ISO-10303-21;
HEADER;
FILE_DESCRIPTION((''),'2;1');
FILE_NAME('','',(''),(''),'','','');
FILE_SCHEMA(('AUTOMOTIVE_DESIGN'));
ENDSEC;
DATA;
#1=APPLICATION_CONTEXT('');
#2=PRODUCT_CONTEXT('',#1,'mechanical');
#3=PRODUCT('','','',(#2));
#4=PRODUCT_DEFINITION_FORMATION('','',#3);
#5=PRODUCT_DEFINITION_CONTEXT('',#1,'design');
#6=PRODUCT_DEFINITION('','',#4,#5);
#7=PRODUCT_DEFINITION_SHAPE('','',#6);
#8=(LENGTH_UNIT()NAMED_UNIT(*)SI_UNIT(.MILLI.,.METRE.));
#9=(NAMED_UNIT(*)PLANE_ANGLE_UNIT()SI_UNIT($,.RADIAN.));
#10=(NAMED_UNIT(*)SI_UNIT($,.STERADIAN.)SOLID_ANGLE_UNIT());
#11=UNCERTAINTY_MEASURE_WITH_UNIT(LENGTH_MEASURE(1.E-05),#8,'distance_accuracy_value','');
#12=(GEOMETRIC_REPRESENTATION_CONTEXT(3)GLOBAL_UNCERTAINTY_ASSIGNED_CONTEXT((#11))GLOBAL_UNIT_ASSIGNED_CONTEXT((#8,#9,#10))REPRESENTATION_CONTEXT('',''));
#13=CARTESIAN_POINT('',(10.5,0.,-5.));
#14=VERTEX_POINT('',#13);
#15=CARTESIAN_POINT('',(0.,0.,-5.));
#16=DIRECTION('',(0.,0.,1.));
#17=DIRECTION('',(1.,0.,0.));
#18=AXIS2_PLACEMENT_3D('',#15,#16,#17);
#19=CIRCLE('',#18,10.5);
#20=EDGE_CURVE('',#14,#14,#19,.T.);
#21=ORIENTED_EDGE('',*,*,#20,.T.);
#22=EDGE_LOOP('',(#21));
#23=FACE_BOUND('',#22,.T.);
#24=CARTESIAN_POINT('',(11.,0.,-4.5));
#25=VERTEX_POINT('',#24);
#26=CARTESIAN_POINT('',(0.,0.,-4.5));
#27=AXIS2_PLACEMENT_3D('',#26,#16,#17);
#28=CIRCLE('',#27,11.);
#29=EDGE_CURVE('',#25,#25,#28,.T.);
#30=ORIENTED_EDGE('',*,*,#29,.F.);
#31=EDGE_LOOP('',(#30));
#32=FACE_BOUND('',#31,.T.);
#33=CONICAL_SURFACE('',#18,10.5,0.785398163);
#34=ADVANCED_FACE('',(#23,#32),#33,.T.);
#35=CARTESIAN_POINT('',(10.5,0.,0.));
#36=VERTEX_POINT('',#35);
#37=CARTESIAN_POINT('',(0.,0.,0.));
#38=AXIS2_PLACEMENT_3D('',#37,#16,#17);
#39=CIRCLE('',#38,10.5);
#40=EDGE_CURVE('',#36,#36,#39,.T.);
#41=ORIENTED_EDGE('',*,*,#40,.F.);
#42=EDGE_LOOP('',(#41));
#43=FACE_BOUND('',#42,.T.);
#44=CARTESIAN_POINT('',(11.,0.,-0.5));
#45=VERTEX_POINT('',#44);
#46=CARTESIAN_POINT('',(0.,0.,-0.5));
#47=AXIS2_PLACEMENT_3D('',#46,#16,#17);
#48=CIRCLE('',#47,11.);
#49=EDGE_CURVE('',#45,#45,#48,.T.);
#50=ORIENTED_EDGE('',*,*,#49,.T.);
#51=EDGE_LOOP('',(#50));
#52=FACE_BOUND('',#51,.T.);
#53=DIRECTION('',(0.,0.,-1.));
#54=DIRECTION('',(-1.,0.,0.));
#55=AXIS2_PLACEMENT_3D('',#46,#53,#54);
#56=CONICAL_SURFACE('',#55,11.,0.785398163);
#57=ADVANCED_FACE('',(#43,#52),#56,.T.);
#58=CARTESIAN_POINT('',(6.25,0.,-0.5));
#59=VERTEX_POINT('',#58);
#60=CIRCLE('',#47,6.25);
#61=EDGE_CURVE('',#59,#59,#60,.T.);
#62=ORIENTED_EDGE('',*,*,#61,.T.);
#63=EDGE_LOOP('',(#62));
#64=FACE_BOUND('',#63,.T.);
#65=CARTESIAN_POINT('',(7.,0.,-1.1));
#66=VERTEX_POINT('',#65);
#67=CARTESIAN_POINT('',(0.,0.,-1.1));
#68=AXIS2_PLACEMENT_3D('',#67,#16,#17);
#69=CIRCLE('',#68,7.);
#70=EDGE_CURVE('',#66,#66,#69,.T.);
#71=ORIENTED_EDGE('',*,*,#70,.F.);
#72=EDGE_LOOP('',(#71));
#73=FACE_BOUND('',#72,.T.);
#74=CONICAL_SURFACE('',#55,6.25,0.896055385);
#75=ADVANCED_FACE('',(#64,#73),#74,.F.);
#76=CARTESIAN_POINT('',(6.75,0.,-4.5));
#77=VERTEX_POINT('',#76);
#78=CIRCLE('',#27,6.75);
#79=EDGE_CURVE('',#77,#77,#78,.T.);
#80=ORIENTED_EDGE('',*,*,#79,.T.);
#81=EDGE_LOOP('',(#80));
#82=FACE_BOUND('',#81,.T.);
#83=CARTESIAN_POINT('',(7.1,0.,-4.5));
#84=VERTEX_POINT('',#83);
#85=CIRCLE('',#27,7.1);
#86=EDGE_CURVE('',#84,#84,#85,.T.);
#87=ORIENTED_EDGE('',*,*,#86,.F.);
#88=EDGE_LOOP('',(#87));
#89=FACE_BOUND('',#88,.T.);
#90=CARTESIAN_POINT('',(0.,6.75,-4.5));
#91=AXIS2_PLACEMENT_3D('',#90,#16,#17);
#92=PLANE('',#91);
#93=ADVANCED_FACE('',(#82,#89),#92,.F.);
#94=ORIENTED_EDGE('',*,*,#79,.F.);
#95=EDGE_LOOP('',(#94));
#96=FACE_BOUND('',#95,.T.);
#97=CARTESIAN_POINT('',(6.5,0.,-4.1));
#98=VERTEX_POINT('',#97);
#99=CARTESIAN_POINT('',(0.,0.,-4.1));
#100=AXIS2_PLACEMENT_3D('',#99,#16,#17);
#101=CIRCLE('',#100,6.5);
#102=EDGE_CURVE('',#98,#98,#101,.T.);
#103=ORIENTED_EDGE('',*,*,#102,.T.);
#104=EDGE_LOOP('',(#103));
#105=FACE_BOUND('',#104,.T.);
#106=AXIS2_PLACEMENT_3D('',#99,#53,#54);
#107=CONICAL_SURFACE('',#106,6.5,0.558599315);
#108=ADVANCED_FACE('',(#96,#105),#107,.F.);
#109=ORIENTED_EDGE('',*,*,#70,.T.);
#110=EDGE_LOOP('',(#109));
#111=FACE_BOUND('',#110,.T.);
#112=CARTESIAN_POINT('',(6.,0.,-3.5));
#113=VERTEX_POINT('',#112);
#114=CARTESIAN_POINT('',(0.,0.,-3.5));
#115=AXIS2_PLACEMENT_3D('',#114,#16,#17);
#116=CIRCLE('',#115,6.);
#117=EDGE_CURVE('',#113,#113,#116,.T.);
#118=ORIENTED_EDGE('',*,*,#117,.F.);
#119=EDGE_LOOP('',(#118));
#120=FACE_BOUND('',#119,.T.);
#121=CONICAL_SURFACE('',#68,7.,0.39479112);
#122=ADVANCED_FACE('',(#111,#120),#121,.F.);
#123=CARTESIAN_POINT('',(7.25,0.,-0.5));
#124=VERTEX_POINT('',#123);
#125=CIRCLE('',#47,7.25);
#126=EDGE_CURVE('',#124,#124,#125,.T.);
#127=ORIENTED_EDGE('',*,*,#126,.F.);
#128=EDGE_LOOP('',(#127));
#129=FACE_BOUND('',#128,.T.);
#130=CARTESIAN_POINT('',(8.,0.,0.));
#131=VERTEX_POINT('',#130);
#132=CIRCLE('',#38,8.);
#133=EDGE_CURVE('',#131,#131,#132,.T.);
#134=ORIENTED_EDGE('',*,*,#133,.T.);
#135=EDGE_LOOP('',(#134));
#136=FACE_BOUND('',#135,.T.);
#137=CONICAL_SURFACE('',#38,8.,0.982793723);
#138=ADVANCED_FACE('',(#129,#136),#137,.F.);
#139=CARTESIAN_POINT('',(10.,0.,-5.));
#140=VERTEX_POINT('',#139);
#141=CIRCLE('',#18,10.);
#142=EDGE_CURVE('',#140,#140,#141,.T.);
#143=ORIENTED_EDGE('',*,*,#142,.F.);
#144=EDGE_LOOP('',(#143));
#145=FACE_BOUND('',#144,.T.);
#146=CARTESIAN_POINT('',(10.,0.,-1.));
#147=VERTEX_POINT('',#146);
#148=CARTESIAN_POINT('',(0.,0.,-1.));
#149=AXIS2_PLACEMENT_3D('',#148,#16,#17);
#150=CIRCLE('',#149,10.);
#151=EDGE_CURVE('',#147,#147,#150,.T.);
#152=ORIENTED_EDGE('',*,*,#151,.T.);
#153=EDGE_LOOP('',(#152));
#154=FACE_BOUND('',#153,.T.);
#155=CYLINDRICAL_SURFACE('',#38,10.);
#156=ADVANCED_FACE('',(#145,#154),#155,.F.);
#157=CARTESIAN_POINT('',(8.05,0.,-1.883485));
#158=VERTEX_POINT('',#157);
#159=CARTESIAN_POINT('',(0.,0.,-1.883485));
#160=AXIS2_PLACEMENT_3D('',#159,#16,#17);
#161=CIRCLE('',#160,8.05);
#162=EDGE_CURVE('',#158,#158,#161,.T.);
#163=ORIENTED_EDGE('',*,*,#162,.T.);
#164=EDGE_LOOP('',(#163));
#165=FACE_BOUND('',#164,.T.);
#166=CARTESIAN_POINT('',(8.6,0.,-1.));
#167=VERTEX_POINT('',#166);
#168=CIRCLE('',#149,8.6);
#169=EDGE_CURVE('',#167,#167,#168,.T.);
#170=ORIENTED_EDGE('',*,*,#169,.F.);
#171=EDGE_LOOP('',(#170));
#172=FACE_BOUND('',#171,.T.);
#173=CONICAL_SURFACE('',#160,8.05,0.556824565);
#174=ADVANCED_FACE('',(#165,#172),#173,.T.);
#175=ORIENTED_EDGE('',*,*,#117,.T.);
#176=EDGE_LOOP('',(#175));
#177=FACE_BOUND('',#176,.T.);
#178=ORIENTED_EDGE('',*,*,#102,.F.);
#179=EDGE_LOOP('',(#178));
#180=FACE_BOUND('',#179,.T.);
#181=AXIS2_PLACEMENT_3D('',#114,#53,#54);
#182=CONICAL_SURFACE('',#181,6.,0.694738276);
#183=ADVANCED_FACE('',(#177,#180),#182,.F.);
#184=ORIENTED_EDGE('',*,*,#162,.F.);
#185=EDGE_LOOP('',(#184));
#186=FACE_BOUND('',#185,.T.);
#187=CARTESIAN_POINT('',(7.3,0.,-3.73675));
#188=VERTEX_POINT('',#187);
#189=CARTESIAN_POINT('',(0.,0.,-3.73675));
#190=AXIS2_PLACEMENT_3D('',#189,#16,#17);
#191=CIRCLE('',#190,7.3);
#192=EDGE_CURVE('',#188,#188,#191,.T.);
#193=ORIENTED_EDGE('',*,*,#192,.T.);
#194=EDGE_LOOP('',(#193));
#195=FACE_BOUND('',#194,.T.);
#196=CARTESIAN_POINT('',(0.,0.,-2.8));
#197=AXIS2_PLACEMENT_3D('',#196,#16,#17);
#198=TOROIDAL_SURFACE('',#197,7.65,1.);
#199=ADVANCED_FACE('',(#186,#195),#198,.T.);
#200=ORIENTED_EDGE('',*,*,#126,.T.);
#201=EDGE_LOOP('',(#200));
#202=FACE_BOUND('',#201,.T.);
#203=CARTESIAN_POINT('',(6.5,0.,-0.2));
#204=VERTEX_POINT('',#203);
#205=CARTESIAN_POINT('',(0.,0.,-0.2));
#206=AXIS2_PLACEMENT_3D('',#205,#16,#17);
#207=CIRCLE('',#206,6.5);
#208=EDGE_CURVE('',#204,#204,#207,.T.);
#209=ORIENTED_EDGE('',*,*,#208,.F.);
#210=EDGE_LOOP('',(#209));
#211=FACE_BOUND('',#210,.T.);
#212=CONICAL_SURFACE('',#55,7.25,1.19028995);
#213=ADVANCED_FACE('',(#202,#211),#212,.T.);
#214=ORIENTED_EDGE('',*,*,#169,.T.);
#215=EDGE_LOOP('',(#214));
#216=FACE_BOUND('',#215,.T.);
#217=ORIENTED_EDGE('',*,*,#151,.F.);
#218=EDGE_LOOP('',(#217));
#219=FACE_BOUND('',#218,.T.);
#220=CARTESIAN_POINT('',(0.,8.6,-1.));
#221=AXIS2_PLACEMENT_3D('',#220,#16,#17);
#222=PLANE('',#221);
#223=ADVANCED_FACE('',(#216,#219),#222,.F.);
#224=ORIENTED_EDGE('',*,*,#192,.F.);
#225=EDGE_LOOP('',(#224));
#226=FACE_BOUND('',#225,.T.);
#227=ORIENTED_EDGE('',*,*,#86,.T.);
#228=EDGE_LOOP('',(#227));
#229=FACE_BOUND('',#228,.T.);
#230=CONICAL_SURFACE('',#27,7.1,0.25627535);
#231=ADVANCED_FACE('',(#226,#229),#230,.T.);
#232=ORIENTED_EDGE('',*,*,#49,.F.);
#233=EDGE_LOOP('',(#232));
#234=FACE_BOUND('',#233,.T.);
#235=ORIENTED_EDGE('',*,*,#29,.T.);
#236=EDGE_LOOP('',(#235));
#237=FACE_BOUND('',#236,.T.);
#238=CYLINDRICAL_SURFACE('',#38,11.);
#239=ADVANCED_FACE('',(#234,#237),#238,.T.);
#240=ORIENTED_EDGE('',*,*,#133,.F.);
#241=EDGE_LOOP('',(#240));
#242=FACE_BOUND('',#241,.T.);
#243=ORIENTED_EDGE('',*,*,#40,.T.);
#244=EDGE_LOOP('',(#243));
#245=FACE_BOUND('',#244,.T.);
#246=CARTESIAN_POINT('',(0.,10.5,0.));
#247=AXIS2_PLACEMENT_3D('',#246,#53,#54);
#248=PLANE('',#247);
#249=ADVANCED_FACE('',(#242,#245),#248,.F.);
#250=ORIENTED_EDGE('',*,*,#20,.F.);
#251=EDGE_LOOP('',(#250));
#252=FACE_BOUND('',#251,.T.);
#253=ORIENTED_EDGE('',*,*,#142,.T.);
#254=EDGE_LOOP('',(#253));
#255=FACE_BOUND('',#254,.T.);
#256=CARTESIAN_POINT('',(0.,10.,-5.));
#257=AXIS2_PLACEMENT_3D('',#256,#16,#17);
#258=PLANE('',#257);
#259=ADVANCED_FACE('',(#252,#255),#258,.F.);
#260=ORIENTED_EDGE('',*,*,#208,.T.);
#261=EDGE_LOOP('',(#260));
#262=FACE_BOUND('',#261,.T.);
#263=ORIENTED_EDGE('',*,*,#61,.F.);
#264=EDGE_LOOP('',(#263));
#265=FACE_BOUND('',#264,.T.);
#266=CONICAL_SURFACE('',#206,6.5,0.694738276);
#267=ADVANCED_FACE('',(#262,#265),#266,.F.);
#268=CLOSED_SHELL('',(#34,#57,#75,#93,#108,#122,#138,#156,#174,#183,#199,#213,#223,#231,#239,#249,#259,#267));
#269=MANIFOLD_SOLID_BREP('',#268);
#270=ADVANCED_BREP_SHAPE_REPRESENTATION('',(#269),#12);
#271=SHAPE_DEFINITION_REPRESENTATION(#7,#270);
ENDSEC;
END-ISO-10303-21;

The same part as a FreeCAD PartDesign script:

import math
import FreeCAD as App
import Part
import Sketcher

doc = App.newDocument("Part")
body = doc.addObject("PartDesign::Body", "Body")

# Sketch on YZ plane
sketch1 = body.newObject("Sketcher::SketchObject", "Sketch")
sketch1.AttachmentSupport = (doc.getObject("YZ_Plane"), [""])
sketch1.MapMode = "FlatFace"
sketch1.addGeometry([
    Part.LineSegment(App.Vector(7.1, -4.5, 0), App.Vector(7.3, -3.74, 0)),  # 0
    Part.ArcOfCircle(Part.Circle(App.Vector(7.65, -2.8, 0), App.Vector(0, 0, 1), 1), math.radians(-110), math.radians(66)),  # 1
    Part.LineSegment(App.Vector(8.05, -1.88, 0), App.Vector(8.6, -1, 0)),  # 2
    Part.LineSegment(App.Vector(8.6, -1, 0), App.Vector(10, -1, 0)),  # 3
    Part.LineSegment(App.Vector(10, -1, 0), App.Vector(10, -5, 0)),  # 4
    Part.LineSegment(App.Vector(10, -5, 0), App.Vector(10.5, -5, 0)),  # 5
    Part.LineSegment(App.Vector(10.5, -5, 0), App.Vector(11, -4.5, 0)),  # 6
    Part.LineSegment(App.Vector(11, -4.5, 0), App.Vector(11, -0.5, 0)),  # 7
    Part.LineSegment(App.Vector(11, -0.5, 0), App.Vector(10.5, 0, 0)),  # 8
    Part.LineSegment(App.Vector(10.5, 0, 0), App.Vector(8, 0, 0)),  # 9
    Part.LineSegment(App.Vector(8, 0, 0), App.Vector(7.25, -0.5, 0)),  # 10
    Part.LineSegment(App.Vector(7.25, -0.5, 0), App.Vector(6.5, -0.2, 0)),  # 11
    Part.LineSegment(App.Vector(6.5, -0.2, 0), App.Vector(6.25, -0.5, 0)),  # 12
    Part.LineSegment(App.Vector(6.25, -0.5, 0), App.Vector(7, -1.1, 0)),  # 13
    Part.LineSegment(App.Vector(7, -1.1, 0), App.Vector(6, -3.5, 0)),  # 14
    Part.LineSegment(App.Vector(6, -3.5, 0), App.Vector(6.5, -4.1, 0)),  # 15
    Part.LineSegment(App.Vector(6.5, -4.1, 0), App.Vector(6.75, -4.5, 0)),  # 16
    Part.LineSegment(App.Vector(6.75, -4.5, 0), App.Vector(7.1, -4.5, 0)),  # 17
], False)
sketch1.addConstraint([
    Sketcher.Constraint("Coincident", 0, 2, 1, 1),
    Sketcher.Constraint("Coincident", 1, 2, 2, 1),
    Sketcher.Constraint("Coincident", 2, 2, 3, 1),
    Sketcher.Constraint("Coincident", 3, 2, 4, 1),
    Sketcher.Constraint("Coincident", 4, 2, 5, 1),
    Sketcher.Constraint("Coincident", 5, 2, 6, 1),
    Sketcher.Constraint("Coincident", 6, 2, 7, 1),
    Sketcher.Constraint("Coincident", 7, 2, 8, 1),
    Sketcher.Constraint("Coincident", 8, 2, 9, 1),
    Sketcher.Constraint("Coincident", 9, 2, 10, 1),
    Sketcher.Constraint("Coincident", 10, 2, 11, 1),
    Sketcher.Constraint("Coincident", 11, 2, 12, 1),
    Sketcher.Constraint("Coincident", 12, 2, 13, 1),
    Sketcher.Constraint("Coincident", 13, 2, 14, 1),
    Sketcher.Constraint("Coincident", 14, 2, 15, 1),
    Sketcher.Constraint("Coincident", 15, 2, 16, 1),
    Sketcher.Constraint("Coincident", 16, 2, 17, 1),
    Sketcher.Constraint("Coincident", 17, 2, 0, 1),
    Sketcher.Constraint("Horizontal", 3),
    Sketcher.Constraint("Vertical", 4),
    Sketcher.Constraint("Horizontal", 5),
    Sketcher.Constraint("Vertical", 7),
    Sketcher.Constraint("Horizontal", 9),
    Sketcher.Constraint("Horizontal", 17),
    Sketcher.Constraint("PointOnObject", 8, 2, -1),
    Sketcher.Constraint("Perpendicular", 6, 8),
    Sketcher.Constraint("Horizontal", 7, 2, 10, 2),
    Sketcher.Constraint("Horizontal", 10, 2, 12, 2),
    Sketcher.Constraint("Horizontal", 6, 2, 16, 2),
    Sketcher.Constraint("Vertical", 5, 2, 8, 2),
    Sketcher.Constraint("Vertical", 11, 2, 15, 2),
    Sketcher.Constraint("Equal", 4, 7),
    Sketcher.Constraint("Equal", 6, 8),
    Sketcher.Constraint("Radius", 1, 1.0),
    Sketcher.Constraint("DistanceY", 4, 2, 4, 1, 4.0),
    Sketcher.Constraint("DistanceX", 3, 1, 3, 2, 1.4),
    Sketcher.Constraint("DistanceX", 5, 1, 5, 2, 0.5),
    Sketcher.Constraint("DistanceX", 9, 2, 9, 1, 2.5),
    Sketcher.Constraint("DistanceY", 2, 2, -1, 1, 1.0),
    Sketcher.Constraint("DistanceX", -1, 1, 3, 2, 10.0),
    Sketcher.Constraint("DistanceX", -1, 1, 13, 2, 7.0),
    Sketcher.Constraint("DistanceX", -1, 1, 14, 2, 6.0),
    Sketcher.Constraint("DistanceX", 12, 2, 10, 2, 1.0),
    Sketcher.Constraint("DistanceY", 14, 2, 12, 2, 3.0),
    Sketcher.Constraint("DistanceY", 15, 2, 13, 2, 3.0),
    Sketcher.Constraint("Distance", 14, 2.6),
    Sketcher.Constraint("DistanceX", 17, 1, 17, 2, 0.35),
    Sketcher.Constraint("DistanceY", 1, 3, -1, 1, 2.8),
    Sketcher.Constraint("DistanceX", -1, 1, 0, 2, 7.3),
    Sketcher.Constraint("DistanceX", -1, 1, 11, 2, 6.5),
    Sketcher.Constraint("DistanceY", 11, 2, -1, 1, 0.2),
    Sketcher.Constraint("DistanceX", -1, 1, 17, 2, 7.1),
    Sketcher.Constraint("DistanceX", 1, 3, 1, 2, 0.4),
    Sketcher.Constraint("DistanceX", 10, 2, 1, 2, 0.8),
    Sketcher.Constraint("DistanceX", 16, 2, 1, 3, 0.9),
])
revolution = body.newObject("PartDesign::Revolution", "Revolution")
revolution.Profile = sketch1
revolution.ReferenceAxis = (sketch1, ["V_Axis"])
revolution.Angle = 360

doc.recompute()
